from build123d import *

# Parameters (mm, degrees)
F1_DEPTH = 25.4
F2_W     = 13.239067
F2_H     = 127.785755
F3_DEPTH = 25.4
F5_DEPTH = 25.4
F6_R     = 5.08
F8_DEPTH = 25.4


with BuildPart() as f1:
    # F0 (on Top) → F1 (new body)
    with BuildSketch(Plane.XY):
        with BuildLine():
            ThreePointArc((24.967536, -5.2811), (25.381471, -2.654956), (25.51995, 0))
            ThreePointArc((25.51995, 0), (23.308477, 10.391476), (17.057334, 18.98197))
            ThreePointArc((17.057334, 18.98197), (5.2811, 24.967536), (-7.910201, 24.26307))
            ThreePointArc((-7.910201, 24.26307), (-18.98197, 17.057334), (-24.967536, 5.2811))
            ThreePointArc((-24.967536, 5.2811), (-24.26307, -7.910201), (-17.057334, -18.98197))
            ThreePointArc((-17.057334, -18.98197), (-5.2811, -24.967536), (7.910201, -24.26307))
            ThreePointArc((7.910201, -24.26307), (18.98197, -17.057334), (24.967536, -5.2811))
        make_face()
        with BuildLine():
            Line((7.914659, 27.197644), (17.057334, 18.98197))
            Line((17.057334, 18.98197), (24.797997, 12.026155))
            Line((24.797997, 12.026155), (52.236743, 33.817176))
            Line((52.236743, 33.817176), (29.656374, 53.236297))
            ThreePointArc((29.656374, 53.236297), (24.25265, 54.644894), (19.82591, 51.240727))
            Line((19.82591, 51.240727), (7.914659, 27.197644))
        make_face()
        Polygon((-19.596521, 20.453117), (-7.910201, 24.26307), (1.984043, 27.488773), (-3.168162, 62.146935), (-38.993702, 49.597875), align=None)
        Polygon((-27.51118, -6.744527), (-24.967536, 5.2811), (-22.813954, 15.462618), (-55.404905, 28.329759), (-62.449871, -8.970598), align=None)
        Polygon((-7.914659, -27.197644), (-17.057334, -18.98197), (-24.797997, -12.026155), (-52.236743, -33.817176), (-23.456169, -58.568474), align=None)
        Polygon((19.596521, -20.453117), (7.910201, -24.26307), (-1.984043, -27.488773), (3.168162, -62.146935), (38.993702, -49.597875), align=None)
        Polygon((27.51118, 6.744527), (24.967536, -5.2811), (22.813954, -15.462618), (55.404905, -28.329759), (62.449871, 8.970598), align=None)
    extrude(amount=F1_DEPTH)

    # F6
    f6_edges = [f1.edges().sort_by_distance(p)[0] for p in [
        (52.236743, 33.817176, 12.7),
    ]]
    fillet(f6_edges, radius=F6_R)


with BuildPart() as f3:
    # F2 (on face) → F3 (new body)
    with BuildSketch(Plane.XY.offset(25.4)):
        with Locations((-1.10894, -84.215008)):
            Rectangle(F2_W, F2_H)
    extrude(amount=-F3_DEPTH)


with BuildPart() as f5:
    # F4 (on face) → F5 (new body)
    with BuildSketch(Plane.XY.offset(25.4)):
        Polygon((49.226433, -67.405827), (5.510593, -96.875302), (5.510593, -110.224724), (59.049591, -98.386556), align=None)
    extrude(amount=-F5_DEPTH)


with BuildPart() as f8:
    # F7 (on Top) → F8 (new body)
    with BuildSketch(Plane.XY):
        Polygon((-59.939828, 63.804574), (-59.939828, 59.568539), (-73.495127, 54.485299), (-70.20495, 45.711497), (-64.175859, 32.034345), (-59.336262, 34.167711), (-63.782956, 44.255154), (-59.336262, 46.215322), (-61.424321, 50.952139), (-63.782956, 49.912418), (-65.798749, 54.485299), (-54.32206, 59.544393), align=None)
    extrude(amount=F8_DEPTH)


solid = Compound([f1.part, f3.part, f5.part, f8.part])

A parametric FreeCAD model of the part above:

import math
import FreeCAD as App
import Part
import Sketcher
from FreeCAD import Vector
Q = App.Units.Quantity


def edges_at(feature, points):
    """Names of the edges that pass closest to the given points."""
    edges = feature.Shape.Edges
    near = lambda p: min(range(len(edges)), key=lambda i: edges[i].distToShape(Part.Vertex(*p))[0])
    return sorted({f"Edge{near(p) + 1}" for p in points})

doc = App.newDocument("Part")
body = doc.addObject("PartDesign::Body", "Body")
body.AllowCompound = True

# Sketch on XY plane
sketch1 = doc.addObject("Sketcher::SketchObject", "Sketch")
body.addObject(sketch1)
sketch1.AttachmentSupport = (doc.XY_Plane, [""])
sketch1.MapMode = "FlatFace"
sketch1.addGeometry([
    Part.ArcOfCircle(Part.Circle(Vector(0, 0, 0), Vector(0, 0, 1), 26), math.radians(-11.94), math.radians(0)),  # 0
    Part.ArcOfCircle(Part.Circle(Vector(0, 0, 0), Vector(0, 0, 1), 26), math.radians(0), math.radians(48)),  # 1
    Part.ArcOfCircle(Part.Circle(Vector(0, 0, 0), Vector(0, 0, 1), 26), math.radians(48), math.radians(108)),  # 2
    Part.ArcOfCircle(Part.Circle(Vector(0, 0, 0), Vector(0, 0, 1), 26), math.radians(108), math.radians(168)),  # 3
    Part.ArcOfCircle(Part.Circle(Vector(0, 0, 0), Vector(0, 0, 1), 26), math.radians(168), math.radians(228)),  # 4
    Part.ArcOfCircle(Part.Circle(Vector(0, 0, 0), Vector(0, 0, 1), 26), math.radians(-132), math.radians(-72)),  # 5
    Part.ArcOfCircle(Part.Circle(Vector(0, 0, 0), Vector(0, 0, 1), 26), math.radians(-72), math.radians(-12)),  # 6
    Part.LineSegment(Vector(8, 27, 0), Vector(17, 19, 0)),  # 7
    Part.LineSegment(Vector(17, 19, 0), Vector(25, 12, 0)),  # 8
    Part.LineSegment(Vector(25, 12, 0), Vector(52, 34, 0)),  # 9
    Part.LineSegment(Vector(52, 34, 0), Vector(30, 53, 0)),  # 10
    Part.ArcOfCircle(Part.Circle(Vector(26, 48, 0), Vector(0, 0, 1), 6), math.radians(49), math.radians(154)),  # 11
    Part.LineSegment(Vector(20, 51, 0), Vector(8, 27, 0)),  # 12
    Part.LineSegment(Vector(-20, 20, 0), Vector(-8, 24, 0)),  # 13
    Part.LineSegment(Vector(-8, 24, 0), Vector(2, 27, 0)),  # 14
    Part.LineSegment(Vector(2, 27, 0), Vector(-3, 62, 0)),  # 15
    Part.LineSegment(Vector(-3, 62, 0), Vector(-39, 50, 0)),  # 16
    Part.LineSegment(Vector(-39, 50, 0), Vector(-20, 20, 0)),  # 17
    Part.LineSegment(Vector(-28, -7, 0), Vector(-25, 5, 0)),  # 18
    Part.LineSegment(Vector(-25, 5, 0), Vector(-23, 15, 0)),  # 19
    Part.LineSegment(Vector(-23, 15, 0), Vector(-55, 28, 0)),  # 20
    Part.LineSegment(Vector(-55, 28, 0), Vector(-62, -9, 0)),  # 21
    Part.LineSegment(Vector(-62, -9, 0), Vector(-28, -7, 0)),  # 22
    Part.LineSegment(Vector(-8, -27, 0), Vector(-17, -19, 0)),  # 23
    Part.LineSegment(Vector(-17, -19, 0), Vector(-25, -12, 0)),  # 24
    Part.LineSegment(Vector(-25, -12, 0), Vector(-52, -34, 0)),  # 25
    Part.LineSegment(Vector(-52, -34, 0), Vector(-23, -59, 0)),  # 26
    Part.LineSegment(Vector(-23, -59, 0), Vector(-8, -27, 0)),  # 27
    Part.LineSegment(Vector(20, -20, 0), Vector(8, -24, 0)),  # 28
    Part.LineSegment(Vector(8, -24, 0), Vector(-2, -27, 0)),  # 29
    Part.LineSegment(Vector(-2, -27, 0), Vector(3, -62, 0)),  # 30
    Part.LineSegment(Vector(3, -62, 0), Vector(39, -50, 0)),  # 31
    Part.LineSegment(Vector(39, -50, 0), Vector(20, -20, 0)),  # 32
    Part.LineSegment(Vector(28, 7, 0), Vector(25, -5, 0)),  # 33
    Part.LineSegment(Vector(25, -5, 0), Vector(23, -15, 0)),  # 34
    Part.LineSegment(Vector(23, -15, 0), Vector(55, -28, 0)),  # 35
    Part.LineSegment(Vector(55, -28, 0), Vector(62, 9, 0)),  # 36
    Part.LineSegment(Vector(62, 9, 0), Vector(28, 7, 0)),  # 37
], False)
sketch1.addConstraint([
    Sketcher.Constraint("Tangent", 0, 2, 1, 1),
    Sketcher.Constraint("Tangent", 1, 2, 2, 1),
    Sketcher.Constraint("Tangent", 2, 2, 3, 1),
    Sketcher.Constraint("Tangent", 3, 2, 4, 1),
    Sketcher.Constraint("Tangent", 4, 2, 5, 1),
    Sketcher.Constraint("Tangent", 5, 2, 6, 1),
    Sketcher.Constraint("Tangent", 6, 2, 0, 1),
    Sketcher.Constraint("Coincident", 7, 2, 8, 1),
    Sketcher.Constraint("Coincident", 8, 2, 9, 1),
    Sketcher.Constraint("Coincident", 9, 2, 10, 1),
    Sketcher.Constraint("Tangent", 10, 2, 11, 1),
    Sketcher.Constraint("Tangent", 11, 2, 12, 1),
    Sketcher.Constraint("Coincident", 12, 2, 7, 1),
    Sketcher.Constraint("Coincident", 13, 2, 14, 1),
    Sketcher.Constraint("Coincident", 14, 2, 15, 1),
    Sketcher.Constraint("Coincident", 15, 2, 16, 1),
    Sketcher.Constraint("Coincident", 16, 2, 17, 1),
    Sketcher.Constraint("Coincident", 17, 2, 13, 1),
    Sketcher.Constraint("Coincident", 18, 2, 19, 1),
    Sketcher.Constraint("Coincident", 19, 2, 20, 1),
    Sketcher.Constraint("Coincident", 20, 2, 21, 1),
    Sketcher.Constraint("Coincident", 21, 2, 22, 1),
    Sketcher.Constraint("Coincident", 22, 2, 18, 1),
    Sketcher.Constraint("Coincident", 23, 2, 24, 1),
    Sketcher.Constraint("Coincident", 24, 2, 25, 1),
    Sketcher.Constraint("Coincident", 25, 2, 26, 1),
    Sketcher.Constraint("Coincident", 26, 2, 27, 1),
    Sketcher.Constraint("Coincident", 27, 2, 23, 1),
    Sketcher.Constraint("Coincident", 28, 2, 29, 1),
    Sketcher.Constraint("Coincident", 29, 2, 30, 1),
    Sketcher.Constraint("Coincident", 30, 2, 31, 1),
    Sketcher.Constraint("Coincident", 31, 2, 32, 1),
    Sketcher.Constraint("Coincident", 32, 2, 28, 1),
    Sketcher.Constraint("Coincident", 33, 2, 34, 1),
    Sketcher.Constraint("Coincident", 34, 2, 35, 1),
    Sketcher.Constraint("Coincident", 35, 2, 36, 1),
    Sketcher.Constraint("Coincident", 36, 2, 37, 1),
    Sketcher.Constraint("Coincident", 37, 2, 33, 1),
    Sketcher.Constraint("Coincident", 0, 3, -1, 1),
    Sketcher.Constraint("Coincident", 2, 3, -1, 1),
    Sketcher.Constraint("Coincident", 4, 3, -1, 1),
    Sketcher.Constraint("Coincident", 7, 2, 1, 2),
    Sketcher.Constraint("Coincident", 13, 2, 2, 2),
    Sketcher.Constraint("Coincident", 18, 2, 3, 2),
    Sketcher.Constraint("Coincident", 23, 2, 4, 2),
    Sketcher.Constraint("Coincident", 28, 2, 5, 2),
    Sketcher.Constraint("Coincident", 33, 2, 6, 2),
    Sketcher.Constraint("Symmetric", 8, 2, 24, 2, -1, 1),
    Sketcher.Constraint("Symmetric", 9, 2, 25, 2, -1, 1),
    Sketcher.Constraint("Symmetric", 12, 2, 27, 2, -1, 1),
    Sketcher.Constraint("Symmetric", 14, 2, 29, 2, -1, 1),
    Sketcher.Constraint("Symmetric", 15, 2, 30, 2, -1, 1),
    Sketcher.Constraint("Symmetric", 16, 2, 31, 2, -1, 1),
    Sketcher.Constraint("Symmetric", 17, 2, 32, 2, -1, 1),
    Sketcher.Constraint("Symmetric", 19, 2, 34, 2, -1, 1),
    Sketcher.Constraint("Symmetric", 20, 2, 35, 2, -1, 1),
    Sketcher.Constraint("Symmetric", 21, 2, 36, 2, -1, 1),
    Sketcher.Constraint("Symmetric", 22, 2, 37, 2, -1, 1),
    Sketcher.Constraint("PointOnObject", 0, 2, -1),
    Sketcher.Constraint("Parallel", 7, 8),
    Sketcher.Constraint("Parallel", 13, 14),
    Sketcher.Constraint("Parallel", 18, 19),
    Sketcher.Constraint("Parallel", 10, 26),
    Sketcher.Constraint("Parallel", 12, 27),
    Sketcher.Constraint("Equal", 7, 13),
    Sketcher.Constraint("Equal", 8, 14),
    Sketcher.Constraint("Equal", 9, 15),
    Sketcher.Constraint("Equal", 13, 18),
    Sketcher.Constraint("Equal", 14, 19),
    Sketcher.Constraint("Equal", 15, 20),
    Sketcher.Constraint("Equal", 16, 21),
    Sketcher.Constraint("Equal", 17, 22),
    Sketcher.Constraint("Equal", 18, 23),
    Sketcher.Constraint("Equal", 21, 26),
    Sketcher.Constraint("Equal", 22, 27),
    Sketcher.Constraint("Equal", 23, 28),
    Sketcher.Constraint("Equal", 28, 33),
    Sketcher.Constraint("Radius", 11, Q("0.25 in")),
    Sketcher.Constraint("Radius", 4, 25.519951),
    Sketcher.Constraint("DistanceX", 2, 2, -1, 1, 7.910201),
    Sketcher.Constraint("DistanceY", -1, 1, 3, 2, 5.2811),
    Sketcher.Constraint("DistanceY", 21, 2, -1, 1, 8.970598),
    Sketcher.Constraint("DistanceY", 1, 2, 2, 2, 5.2811),
    Sketcher.Constraint("DistanceX", 16, 2, 2, 2, 31.083501),
    Sketcher.Constraint("DistanceY", 19, 2, 17, 2, 4.990499),
    Sketcher.Constraint("Distance", 10, 29.782131),
    Sketcher.Constraint("Distance", 12, 26.831842),
    Sketcher.Constraint("DistanceY", -1, 1, 11, 3, 48.421821),
    Sketcher.Constraint("DistanceX", -1, 1, 11, 2, 19.82591),
    Sketcher.Constraint("DistanceX", -1, 1, 12, 2, 7.914659),
    Sketcher.Constraint("DistanceX", 17, 2, -1, 1, 19.596521),
    Sketcher.Constraint("DistanceY", -1, 1, 20, 2, 28.329759),
    Sketcher.Constraint("DistanceX", 21, 2, -1, 1, 62.449871),
])
pad1 = doc.addObject("PartDesign::Pad", "Pad")
body.addObject(pad1)
pad1.Profile = sketch1
pad1.Length = Q("1 in")
doc.recompute()

fillet = doc.addObject("PartDesign::Fillet", "Fillet")
body.addObject(fillet)
fillet.Base = (pad1, edges_at(pad1, [(52.237, 33.817, 12.7)]))
fillet.Radius = Q("0.2 in")
body2 = doc.addObject("PartDesign::Body", "Body001")

# Sketch on XY plane
sketch2 = doc.addObject("Sketcher::SketchObject", "Sketch001")
body2.addObject(sketch2)
sketch2.AttachmentSupport = (doc.getObject("XY_Plane001"), [""])
sketch2.MapMode = "FlatFace"
sketch2.AttachmentOffset = App.Placement(Vector(0, 0, 1 * 25.4), App.Rotation())
sketch2.addGeometry([
    Part.LineSegment(Vector(-8, -20, 0), Vector(-8, -148, 0)),
    Part.LineSegment(Vector(-8, -148, 0), Vector(6, -148, 0)),
    Part.LineSegment(Vector(6, -148, 0), Vector(6, -20, 0)),
    Part.LineSegment(Vector(6, -20, 0), Vector(-8, -20, 0)),
], False)
sketch2.addConstraint([
    Sketcher.Constraint("Coincident", 0, 2, 1, 1),
    Sketcher.Constraint("Coincident", 1, 2, 2, 1),
    Sketcher.Constraint("Coincident", 2, 2, 3, 1),
    Sketcher.Constraint("Coincident", 3, 2, 0, 1),
    Sketcher.Constraint("Vertical", 0),
    Sketcher.Constraint("Horizontal", 1),
    Sketcher.Constraint("Vertical", 2),
    Sketcher.Constraint("Horizontal", 3),
    Sketcher.Constraint("DistanceX", 1, 1, 1, 2, 13.239067),
    Sketcher.Constraint("DistanceY", 0, 2, 0, 1, 127.785755),
    Sketcher.Constraint("DistanceY", 2, 2, -1, 1, 20.322131),
    Sketcher.Constraint("DistanceX", 0, 2, -1, 1, 7.728473),
])
pad2 = doc.addObject("PartDesign::Pad", "Pad001")
body2.addObject(pad2)
pad2.Profile = sketch2
pad2.Length = Q("1 in")
pad2.Reversed = True
body3 = doc.addObject("PartDesign::Body", "Body002")

# Sketch on XY plane
sketch3 = doc.addObject("Sketcher::SketchObject", "Sketch002")
body3.addObject(sketch3)
sketch3.AttachmentSupport = (doc.getObject("XY_Plane002"), [""])
sketch3.MapMode = "FlatFace"
sketch3.AttachmentOffset = App.Placement(Vector(0, 0, 1 * 25.4), App.Rotation())
sketch3.addGeometry([
    Part.LineSegment(Vector(49, -67, 0), Vector(6, -97, 0)),
    Part.LineSegment(Vector(6, -97, 0), Vector(6, -110, 0)),
    Part.LineSegment(Vector(6, -110, 0), Vector(59, -98, 0)),
    Part.LineSegment(Vector(59, -98, 0), Vector(49, -67, 0)),
], False)
sketch3.addConstraint([
    Sketcher.Constraint("Coincident", 0, 2, 1, 1),
    Sketcher.Constraint("Coincident", 1, 2, 2, 1),
    Sketcher.Constraint("Coincident", 2, 2, 3, 1),
    Sketcher.Constraint("Coincident", 3, 2, 0, 1),
    Sketcher.Constraint("Vertical", 1),
    Sketcher.Constraint("DistanceY", 1, 2, 1, 1, 13.349422),
    Sketcher.Constraint("Distance", 3, 32.500769),
    Sketcher.Constraint("DistanceX", -1, 1, 2, 2, 59.049591),
    Sketcher.Constraint("DistanceY", 2, 2, 3, 2, 30.980729),
    Sketcher.Constraint("DistanceX", 0, 2, 3, 2, 43.71584),
    Sketcher.Constraint("Distance", 0, 52.721197),
    Sketcher.Constraint("DistanceY", 0, 2, -1, 1, 96.875302),
])
pad3 = doc.addObject("PartDesign::Pad", "Pad002")
body3.addObject(pad3)
pad3.Profile = sketch3
pad3.Length = Q("1 in")
pad3.Reversed = True
body4 = doc.addObject("PartDesign::Body", "Body003")

# Sketch on XY plane
sketch4 = doc.addObject("Sketcher::SketchObject", "Sketch003")
body4.addObject(sketch4)
sketch4.AttachmentSupport = (doc.getObject("XY_Plane003"), [""])
sketch4.MapMode = "FlatFace"
sketch4.addGeometry([
    Part.LineSegment(Vector(-59.9, 63.8, 0), Vector(-59.9, 59.6, 0)),  # 0
    Part.LineSegment(Vector(-59.9, 59.6, 0), Vector(-73.5, 54.5, 0)),  # 1
    Part.LineSegment(Vector(-73.5, 54.5, 0), Vector(-70.2, 45.7, 0)),  # 2
    Part.LineSegment(Vector(-70.2, 45.7, 0), Vector(-64.2, 32, 0)),  # 3
    Part.LineSegment(Vector(-64.2, 32, 0), Vector(-59.3, 34.2, 0)),  # 4
    Part.LineSegment(Vector(-59.3, 34.2, 0), Vector(-63.8, 44.3, 0)),  # 5
    Part.LineSegment(Vector(-63.8, 44.3, 0), Vector(-59.3, 46.2, 0)),  # 6
    Part.LineSegment(Vector(-59.3, 46.2, 0), Vector(-61.4, 51, 0)),  # 7
    Part.LineSegment(Vector(-61.4, 51, 0), Vector(-63.8, 49.9, 0)),  # 8
    Part.LineSegment(Vector(-63.8, 49.9, 0), Vector(-65.8, 54.5, 0)),  # 9
    Part.LineSegment(Vector(-65.8, 54.5, 0), Vector(-54.3, 59.5, 0)),  # 10
    Part.LineSegment(Vector(-54.3, 59.5, 0), Vector(-59.9, 63.8, 0)),  # 11
], False)
sketch4.addConstraint([
    Sketcher.Constraint("Coincident", 0, 2, 1, 1),
    Sketcher.Constraint("Coincident", 1, 2, 2, 1),
    Sketcher.Constraint("Coincident", 2, 2, 3, 1),
    Sketcher.Constraint("Coincident", 3, 2, 4, 1),
    Sketcher.Constraint("Coincident", 4, 2, 5, 1),
    Sketcher.Constraint("Coincident", 5, 2, 6, 1),
    Sketcher.Constraint("Coincident", 6, 2, 7, 1),
    Sketcher.Constraint("Coincident", 7, 2, 8, 1),
    Sketcher.Constraint("Coincident", 8, 2, 9, 1),
    Sketcher.Constraint("Coincident", 9, 2, 10, 1),
    Sketcher.Constraint("Coincident", 10, 2, 11, 1),
    Sketcher.Constraint("Coincident", 11, 2, 0, 1),
    Sketcher.Constraint("Vertical", 0),
    Sketcher.Constraint("Perpendicular", 1, 2),
    Sketcher.Constraint("Perpendicular", 3, 4),
    Sketcher.Constraint("Perpendicular", 4, 5),
    Sketcher.Constraint("Perpendicular", 5, 6),
    Sketcher.Constraint("Perpendicular", 6, 7),
    Sketcher.Constraint("Perpendicular", 7, 8),
    Sketcher.Constraint("Perpendicular", 8, 9),
    Sketcher.Constraint("Perpendicular", 9, 10),
    Sketcher.Constraint("Horizontal", 1, 2, 9, 2),
    Sketcher.Constraint("Vertical", 4, 2, 6, 2),
    Sketcher.Constraint("Vertical", 5, 2, 8, 2),
    Sketcher.Constraint("DistanceY", -1, 1, 1, 2, 54.485299),
    Sketcher.Constraint("DistanceX", 1, 2, 0, 2, 13.555299),
    Sketcher.Constraint("DistanceY", 2, 2, 1, 2, 8.773802),
    Sketcher.Constraint("DistanceY", 7, 2, 0, 2, 8.6164),
    Sketcher.Constraint("DistanceX", 2, 2, 9, 2, 4.406201),
    Sketcher.Constraint("DistanceX", 6, 2, 10, 2, 5.014202),
    Sketcher.Constraint("Distance", 8, 2.57763),
    Sketcher.Constraint("Distance", 10, 12.542281),
    Sketcher.Constraint("DistanceY", 0, 2, 0, 1, 4.236035),
    Sketcher.Constraint("DistanceY", -1, 1, 0, 2, 59.568539),
    Sketcher.Constraint("DistanceX", 2, 2, -1, 1, 70.20495),
    Sketcher.Constraint("DistanceX", 3, 2, -1, 1, 64.175859),
])
pad4 = doc.addObject("PartDesign::Pad", "Pad003")
body4.addObject(pad4)
pad4.Profile = sketch4
pad4.Length = Q("1 in")

doc.recompute()
